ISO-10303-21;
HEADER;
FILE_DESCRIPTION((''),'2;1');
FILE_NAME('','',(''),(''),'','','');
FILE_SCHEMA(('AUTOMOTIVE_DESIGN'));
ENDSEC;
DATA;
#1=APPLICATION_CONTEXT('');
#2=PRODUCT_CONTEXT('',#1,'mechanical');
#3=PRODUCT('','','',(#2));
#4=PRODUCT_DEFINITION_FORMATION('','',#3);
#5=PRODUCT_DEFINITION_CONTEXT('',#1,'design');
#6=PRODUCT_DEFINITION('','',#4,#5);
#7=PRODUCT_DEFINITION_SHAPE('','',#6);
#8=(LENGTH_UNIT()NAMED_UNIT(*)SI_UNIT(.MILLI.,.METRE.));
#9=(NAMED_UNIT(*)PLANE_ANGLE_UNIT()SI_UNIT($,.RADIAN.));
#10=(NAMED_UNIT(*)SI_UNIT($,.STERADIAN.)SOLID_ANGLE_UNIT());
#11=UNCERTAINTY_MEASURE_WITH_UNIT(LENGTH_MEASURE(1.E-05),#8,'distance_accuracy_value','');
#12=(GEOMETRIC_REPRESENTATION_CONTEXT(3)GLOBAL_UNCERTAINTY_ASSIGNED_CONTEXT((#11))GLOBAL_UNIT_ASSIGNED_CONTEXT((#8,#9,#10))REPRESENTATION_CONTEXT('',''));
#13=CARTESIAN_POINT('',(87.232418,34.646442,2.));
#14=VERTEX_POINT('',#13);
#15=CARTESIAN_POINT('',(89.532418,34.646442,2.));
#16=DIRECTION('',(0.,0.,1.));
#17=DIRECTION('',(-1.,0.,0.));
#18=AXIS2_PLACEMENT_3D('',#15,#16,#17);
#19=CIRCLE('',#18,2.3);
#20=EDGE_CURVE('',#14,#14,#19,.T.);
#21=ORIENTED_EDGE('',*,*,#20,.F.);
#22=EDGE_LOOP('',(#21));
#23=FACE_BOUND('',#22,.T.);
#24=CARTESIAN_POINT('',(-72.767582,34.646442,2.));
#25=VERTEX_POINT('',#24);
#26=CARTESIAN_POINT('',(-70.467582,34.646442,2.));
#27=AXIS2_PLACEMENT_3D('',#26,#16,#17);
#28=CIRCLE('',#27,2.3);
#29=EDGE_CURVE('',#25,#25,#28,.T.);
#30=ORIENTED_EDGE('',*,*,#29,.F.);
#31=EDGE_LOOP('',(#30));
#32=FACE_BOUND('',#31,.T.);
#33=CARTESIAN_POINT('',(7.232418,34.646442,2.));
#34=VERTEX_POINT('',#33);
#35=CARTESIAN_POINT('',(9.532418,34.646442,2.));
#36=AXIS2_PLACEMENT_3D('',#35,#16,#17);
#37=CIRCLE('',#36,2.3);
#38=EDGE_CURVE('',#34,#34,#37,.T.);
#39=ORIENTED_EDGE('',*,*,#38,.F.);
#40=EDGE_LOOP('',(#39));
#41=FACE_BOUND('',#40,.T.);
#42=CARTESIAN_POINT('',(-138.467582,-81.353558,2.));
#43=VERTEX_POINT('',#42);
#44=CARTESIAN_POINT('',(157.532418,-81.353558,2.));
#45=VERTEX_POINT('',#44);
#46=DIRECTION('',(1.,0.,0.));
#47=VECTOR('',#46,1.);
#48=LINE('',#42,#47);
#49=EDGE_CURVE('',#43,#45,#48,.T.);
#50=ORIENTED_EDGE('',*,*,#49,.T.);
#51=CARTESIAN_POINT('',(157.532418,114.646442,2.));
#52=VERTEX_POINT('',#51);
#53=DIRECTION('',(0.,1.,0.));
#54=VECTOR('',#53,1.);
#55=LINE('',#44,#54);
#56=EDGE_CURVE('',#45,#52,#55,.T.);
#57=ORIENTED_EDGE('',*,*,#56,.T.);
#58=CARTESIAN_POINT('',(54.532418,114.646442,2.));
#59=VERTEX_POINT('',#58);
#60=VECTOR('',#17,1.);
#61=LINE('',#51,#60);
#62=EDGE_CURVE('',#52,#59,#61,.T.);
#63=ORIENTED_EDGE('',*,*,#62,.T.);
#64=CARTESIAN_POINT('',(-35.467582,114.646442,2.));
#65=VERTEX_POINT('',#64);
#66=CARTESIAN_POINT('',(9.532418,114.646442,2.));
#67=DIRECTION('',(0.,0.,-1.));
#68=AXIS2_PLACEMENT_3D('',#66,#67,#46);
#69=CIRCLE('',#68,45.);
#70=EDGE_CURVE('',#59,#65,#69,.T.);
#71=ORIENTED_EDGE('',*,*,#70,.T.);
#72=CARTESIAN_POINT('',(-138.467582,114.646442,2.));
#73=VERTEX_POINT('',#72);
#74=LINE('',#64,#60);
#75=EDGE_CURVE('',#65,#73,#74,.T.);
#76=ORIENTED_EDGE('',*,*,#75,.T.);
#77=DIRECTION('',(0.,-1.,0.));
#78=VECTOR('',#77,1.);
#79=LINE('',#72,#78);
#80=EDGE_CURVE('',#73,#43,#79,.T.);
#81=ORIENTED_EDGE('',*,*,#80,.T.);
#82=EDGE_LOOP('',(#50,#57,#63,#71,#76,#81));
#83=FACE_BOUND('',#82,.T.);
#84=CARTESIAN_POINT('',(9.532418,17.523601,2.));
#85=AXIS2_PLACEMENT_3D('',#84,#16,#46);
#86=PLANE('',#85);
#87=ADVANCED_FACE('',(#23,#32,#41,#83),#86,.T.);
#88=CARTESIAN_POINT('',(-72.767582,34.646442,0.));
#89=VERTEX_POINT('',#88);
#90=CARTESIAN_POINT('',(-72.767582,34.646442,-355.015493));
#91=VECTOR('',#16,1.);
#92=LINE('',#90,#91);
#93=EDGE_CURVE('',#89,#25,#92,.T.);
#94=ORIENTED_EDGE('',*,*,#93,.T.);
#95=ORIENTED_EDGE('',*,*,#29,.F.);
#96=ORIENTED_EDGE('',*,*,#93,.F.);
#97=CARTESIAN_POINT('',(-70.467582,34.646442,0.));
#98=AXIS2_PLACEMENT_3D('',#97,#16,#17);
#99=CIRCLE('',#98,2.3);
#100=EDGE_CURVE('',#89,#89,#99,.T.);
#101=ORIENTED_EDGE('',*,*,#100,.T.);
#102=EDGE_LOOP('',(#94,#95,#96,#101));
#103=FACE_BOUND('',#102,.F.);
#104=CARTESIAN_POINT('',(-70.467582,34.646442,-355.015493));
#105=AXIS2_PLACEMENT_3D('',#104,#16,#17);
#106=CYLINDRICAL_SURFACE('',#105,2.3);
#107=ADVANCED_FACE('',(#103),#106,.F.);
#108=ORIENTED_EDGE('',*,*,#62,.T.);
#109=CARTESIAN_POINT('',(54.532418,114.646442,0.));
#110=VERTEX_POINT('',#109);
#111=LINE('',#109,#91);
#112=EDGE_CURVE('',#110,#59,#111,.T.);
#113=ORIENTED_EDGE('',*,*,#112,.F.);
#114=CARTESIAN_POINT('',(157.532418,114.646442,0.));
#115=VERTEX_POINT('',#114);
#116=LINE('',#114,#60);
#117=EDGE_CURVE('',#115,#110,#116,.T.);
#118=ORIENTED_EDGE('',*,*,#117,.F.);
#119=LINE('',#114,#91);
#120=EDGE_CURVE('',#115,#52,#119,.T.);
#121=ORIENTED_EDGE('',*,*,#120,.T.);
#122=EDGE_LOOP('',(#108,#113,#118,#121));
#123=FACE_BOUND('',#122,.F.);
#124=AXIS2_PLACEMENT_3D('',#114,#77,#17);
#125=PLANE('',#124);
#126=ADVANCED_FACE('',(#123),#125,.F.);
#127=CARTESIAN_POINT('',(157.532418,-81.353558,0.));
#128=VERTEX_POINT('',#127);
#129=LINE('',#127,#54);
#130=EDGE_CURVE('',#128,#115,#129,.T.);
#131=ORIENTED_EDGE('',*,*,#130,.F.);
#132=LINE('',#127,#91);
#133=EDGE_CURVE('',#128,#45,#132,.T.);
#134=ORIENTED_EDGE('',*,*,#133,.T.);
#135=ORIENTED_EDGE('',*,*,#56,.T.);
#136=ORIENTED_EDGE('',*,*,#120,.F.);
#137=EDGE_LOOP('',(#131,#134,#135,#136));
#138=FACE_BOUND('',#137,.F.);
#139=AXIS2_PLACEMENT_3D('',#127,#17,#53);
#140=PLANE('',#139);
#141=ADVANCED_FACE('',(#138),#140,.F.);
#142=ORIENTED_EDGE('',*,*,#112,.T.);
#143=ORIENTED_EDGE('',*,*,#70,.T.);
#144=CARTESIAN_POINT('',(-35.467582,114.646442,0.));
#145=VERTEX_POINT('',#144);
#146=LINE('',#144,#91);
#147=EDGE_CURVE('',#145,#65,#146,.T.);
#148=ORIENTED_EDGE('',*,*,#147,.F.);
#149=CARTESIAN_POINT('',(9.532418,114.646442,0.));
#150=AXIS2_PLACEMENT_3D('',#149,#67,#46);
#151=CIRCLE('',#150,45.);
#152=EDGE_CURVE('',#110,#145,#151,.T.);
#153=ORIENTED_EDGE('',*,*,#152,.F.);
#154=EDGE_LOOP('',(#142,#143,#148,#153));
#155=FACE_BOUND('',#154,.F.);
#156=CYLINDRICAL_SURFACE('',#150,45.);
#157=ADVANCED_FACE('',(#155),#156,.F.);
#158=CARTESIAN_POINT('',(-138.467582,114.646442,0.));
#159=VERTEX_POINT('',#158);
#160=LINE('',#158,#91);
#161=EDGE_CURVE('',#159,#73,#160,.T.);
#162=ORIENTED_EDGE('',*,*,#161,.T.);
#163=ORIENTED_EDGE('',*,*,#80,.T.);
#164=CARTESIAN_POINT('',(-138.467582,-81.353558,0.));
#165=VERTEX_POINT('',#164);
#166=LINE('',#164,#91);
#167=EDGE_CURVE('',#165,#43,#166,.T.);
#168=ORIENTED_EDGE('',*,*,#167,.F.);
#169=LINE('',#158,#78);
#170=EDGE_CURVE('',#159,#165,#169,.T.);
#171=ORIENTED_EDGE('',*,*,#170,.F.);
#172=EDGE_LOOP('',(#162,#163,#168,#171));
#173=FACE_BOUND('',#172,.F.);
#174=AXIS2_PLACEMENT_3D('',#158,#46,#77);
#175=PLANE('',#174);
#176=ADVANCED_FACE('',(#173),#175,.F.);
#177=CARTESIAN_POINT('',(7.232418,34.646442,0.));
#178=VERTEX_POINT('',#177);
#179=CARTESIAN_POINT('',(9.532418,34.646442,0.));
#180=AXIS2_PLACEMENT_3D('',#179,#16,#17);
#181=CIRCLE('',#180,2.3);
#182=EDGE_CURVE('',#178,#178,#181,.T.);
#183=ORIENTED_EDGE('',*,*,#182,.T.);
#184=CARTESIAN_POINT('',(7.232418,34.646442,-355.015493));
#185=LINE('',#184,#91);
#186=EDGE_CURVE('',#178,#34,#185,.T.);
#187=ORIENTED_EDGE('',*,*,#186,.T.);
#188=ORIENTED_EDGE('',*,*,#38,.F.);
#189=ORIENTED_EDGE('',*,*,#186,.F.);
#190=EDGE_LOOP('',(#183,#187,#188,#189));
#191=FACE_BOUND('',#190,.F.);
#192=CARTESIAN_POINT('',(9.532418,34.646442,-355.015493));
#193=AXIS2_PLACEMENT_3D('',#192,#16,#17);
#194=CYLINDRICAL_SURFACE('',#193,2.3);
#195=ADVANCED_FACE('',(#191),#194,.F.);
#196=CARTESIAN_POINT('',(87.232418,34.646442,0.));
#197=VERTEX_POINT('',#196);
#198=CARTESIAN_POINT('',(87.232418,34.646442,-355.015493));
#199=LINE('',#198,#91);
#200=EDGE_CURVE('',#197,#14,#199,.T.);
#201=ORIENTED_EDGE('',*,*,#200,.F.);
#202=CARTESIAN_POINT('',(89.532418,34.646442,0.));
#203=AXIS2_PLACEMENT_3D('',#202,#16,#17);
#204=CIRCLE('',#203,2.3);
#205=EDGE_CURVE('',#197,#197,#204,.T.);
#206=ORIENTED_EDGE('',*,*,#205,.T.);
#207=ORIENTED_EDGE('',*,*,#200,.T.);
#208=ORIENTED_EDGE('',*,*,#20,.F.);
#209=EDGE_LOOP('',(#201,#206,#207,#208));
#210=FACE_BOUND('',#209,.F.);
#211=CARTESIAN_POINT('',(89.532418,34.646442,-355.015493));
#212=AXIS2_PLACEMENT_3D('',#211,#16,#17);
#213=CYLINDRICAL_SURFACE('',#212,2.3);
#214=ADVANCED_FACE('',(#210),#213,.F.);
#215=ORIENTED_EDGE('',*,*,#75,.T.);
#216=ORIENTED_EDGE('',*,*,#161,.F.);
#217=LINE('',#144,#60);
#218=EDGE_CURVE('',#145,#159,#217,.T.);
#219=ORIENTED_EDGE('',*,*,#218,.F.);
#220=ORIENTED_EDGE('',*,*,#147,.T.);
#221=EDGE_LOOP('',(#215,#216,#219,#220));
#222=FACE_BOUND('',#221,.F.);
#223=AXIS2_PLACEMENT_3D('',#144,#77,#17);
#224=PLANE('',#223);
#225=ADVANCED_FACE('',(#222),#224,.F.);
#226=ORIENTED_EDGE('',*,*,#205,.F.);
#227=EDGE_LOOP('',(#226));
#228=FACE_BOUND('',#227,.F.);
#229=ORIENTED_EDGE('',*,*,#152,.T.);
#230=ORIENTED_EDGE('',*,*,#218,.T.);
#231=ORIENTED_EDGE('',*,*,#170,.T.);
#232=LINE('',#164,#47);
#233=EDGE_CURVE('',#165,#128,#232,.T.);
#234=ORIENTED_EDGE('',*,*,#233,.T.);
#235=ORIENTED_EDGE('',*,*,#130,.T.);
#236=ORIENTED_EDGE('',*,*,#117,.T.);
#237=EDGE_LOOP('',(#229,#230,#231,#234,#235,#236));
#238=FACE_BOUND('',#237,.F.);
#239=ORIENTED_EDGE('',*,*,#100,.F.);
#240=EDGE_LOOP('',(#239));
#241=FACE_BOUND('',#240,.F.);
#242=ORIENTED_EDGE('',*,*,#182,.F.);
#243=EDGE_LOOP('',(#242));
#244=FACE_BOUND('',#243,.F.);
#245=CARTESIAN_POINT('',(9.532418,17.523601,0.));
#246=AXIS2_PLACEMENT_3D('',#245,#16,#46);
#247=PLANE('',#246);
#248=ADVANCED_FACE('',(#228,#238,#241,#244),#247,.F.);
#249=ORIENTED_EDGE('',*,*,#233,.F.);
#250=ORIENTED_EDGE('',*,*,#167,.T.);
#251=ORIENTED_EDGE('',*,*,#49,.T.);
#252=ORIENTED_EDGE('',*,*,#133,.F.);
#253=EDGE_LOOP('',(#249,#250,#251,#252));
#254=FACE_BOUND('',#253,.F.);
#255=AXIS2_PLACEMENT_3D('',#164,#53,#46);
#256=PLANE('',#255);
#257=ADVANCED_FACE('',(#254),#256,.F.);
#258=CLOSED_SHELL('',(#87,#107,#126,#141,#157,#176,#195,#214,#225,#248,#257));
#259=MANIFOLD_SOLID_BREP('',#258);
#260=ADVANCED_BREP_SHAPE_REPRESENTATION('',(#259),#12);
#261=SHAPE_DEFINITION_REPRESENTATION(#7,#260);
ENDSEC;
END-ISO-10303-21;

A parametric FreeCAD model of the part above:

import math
import FreeCAD as App
import Part
import Sketcher

doc = App.newDocument("Part")
body = doc.addObject("PartDesign::Body", "Body")

sketch1 = body.newObject("Sketcher::SketchObject", "Sketch")
sketch1.AttachmentSupport = (doc.getObject("XY_Plane"), [""])
sketch1.MapMode = "FlatFace"
sketch1.addGeometry(Part.LineSegment(App.Vector(-35, 115, 0), App.Vector(-138, 115, 0)), False)
sketch1.addGeometry(Part.LineSegment(App.Vector(-138, 115, 0), App.Vector(-138, -81, 0)), False)
sketch1.addGeometry(Part.LineSegment(App.Vector(-138, -81, 0), App.Vector(158, -81, 0)), False)
sketch1.addGeometry(Part.LineSegment(App.Vector(158, -81, 0), App.Vector(158, 115, 0)), False)
sketch1.addGeometry(Part.LineSegment(App.Vector(158, 115, 0), App.Vector(55, 115, 0)), False)
sketch1.addGeometry(Part.ArcOfCircle(Part.Circle(App.Vector(10, 115, 0), App.Vector(0, 0, 1), 45), math.radians(180), math.radians(360)), False)
sketch1.addConstraint(Sketcher.Constraint("Coincident", 0, 2, 1, 1))
sketch1.addConstraint(Sketcher.Constraint("Coincident", 1, 2, 2, 1))
sketch1.addConstraint(Sketcher.Constraint("Coincident", 2, 2, 3, 1))
sketch1.addConstraint(Sketcher.Constraint("Coincident", 3, 2, 4, 1))
sketch1.addConstraint(Sketcher.Constraint("Coincident", 4, 2, 5, 2))
sketch1.addConstraint(Sketcher.Constraint("Coincident", 5, 1, 0, 1))
sketch1.addConstraint(Sketcher.Constraint("Horizontal", 0))
sketch1.addConstraint(Sketcher.Constraint("Vertical", 1))
sketch1.addConstraint(Sketcher.Constraint("Horizontal", 2))
sketch1.addConstraint(Sketcher.Constraint("Vertical", 3))
sketch1.addConstraint(Sketcher.Constraint("Horizontal", 4))
sketch1.addConstraint(Sketcher.Constraint("Horizontal", 5, 3, 0, 2))
sketch1.addConstraint(Sketcher.Constraint("Horizontal", 0, 2, 3, 2))
sketch1.addConstraint(Sketcher.Constraint("Equal", 0, 4))
sketch1.addConstraint(Sketcher.Constraint("Radius", 5, 45.0))
sketch1.addConstraint(Sketcher.Constraint("DistanceX", 0, 2, 0, 1, 103.0))
sketch1.addConstraint(Sketcher.Constraint("DistanceY", 1, 2, 1, 1, 196.0))
sketch1.addConstraint(Sketcher.Constraint("DistanceX", -1, 1, 5, 3, 9.532418))
sketch1.addConstraint(Sketcher.Constraint("DistanceY", -1, 1, 5, 3, 114.646442))
pad1 = body.newObject("PartDesign::Pad", "Pad")
pad1.Profile = sketch1
pad1.Length = 2

sketch2 = body.newObject("Sketcher::SketchObject", "Sketch001")
sketch2.AttachmentSupport = (doc.getObject("XY_Plane"), [""])
sketch2.MapMode = "FlatFace"
sketch2.addGeometry(Part.Circle(App.Vector(-70.5, 34.6, 0), App.Vector(0, 0, 1), 2.3), False)
sketch2.addGeometry(Part.Circle(App.Vector(9.5, 34.6, 0), App.Vector(0, 0, 1), 2.3), False)
sketch2.addGeometry(Part.Circle(App.Vector(89.5, 34.6, 0), App.Vector(0, 0, 1), 2.3), False)
sketch2.addConstraint(Sketcher.Constraint("Equal", 0, 1))
sketch2.addConstraint(Sketcher.Constraint("Equal", 1, 2))
sketch2.addConstraint(Sketcher.Constraint("Horizontal", 0, 3, 1, 3))
sketch2.addConstraint(Sketcher.Constraint("Horizontal", 1, 3, 2, 3))
sketch2.addConstraint(Sketcher.Constraint("Diameter", 0, 4.6))
sketch2.addConstraint(Sketcher.Constraint("DistanceX", 0, 3, 1, 3, 80.0))
sketch2.addConstraint(Sketcher.Constraint("DistanceX", 1, 3, 2, 3, 80.0))
sketch2.addConstraint(Sketcher.Constraint("DistanceX", 0, 3, -1, 1, 70.467582))
sketch2.addConstraint(Sketcher.Constraint("DistanceY", -1, 1, 0, 3, 34.646442))
doc.recompute()
hole = body.newObject("PartDesign::Hole", "Hole")
hole.Profile = sketch2
hole.ThreadType = "None"
hole.Diameter = 4.6
hole.DepthType = "ThroughAll"
hole.Reversed = True

doc.recompute()
